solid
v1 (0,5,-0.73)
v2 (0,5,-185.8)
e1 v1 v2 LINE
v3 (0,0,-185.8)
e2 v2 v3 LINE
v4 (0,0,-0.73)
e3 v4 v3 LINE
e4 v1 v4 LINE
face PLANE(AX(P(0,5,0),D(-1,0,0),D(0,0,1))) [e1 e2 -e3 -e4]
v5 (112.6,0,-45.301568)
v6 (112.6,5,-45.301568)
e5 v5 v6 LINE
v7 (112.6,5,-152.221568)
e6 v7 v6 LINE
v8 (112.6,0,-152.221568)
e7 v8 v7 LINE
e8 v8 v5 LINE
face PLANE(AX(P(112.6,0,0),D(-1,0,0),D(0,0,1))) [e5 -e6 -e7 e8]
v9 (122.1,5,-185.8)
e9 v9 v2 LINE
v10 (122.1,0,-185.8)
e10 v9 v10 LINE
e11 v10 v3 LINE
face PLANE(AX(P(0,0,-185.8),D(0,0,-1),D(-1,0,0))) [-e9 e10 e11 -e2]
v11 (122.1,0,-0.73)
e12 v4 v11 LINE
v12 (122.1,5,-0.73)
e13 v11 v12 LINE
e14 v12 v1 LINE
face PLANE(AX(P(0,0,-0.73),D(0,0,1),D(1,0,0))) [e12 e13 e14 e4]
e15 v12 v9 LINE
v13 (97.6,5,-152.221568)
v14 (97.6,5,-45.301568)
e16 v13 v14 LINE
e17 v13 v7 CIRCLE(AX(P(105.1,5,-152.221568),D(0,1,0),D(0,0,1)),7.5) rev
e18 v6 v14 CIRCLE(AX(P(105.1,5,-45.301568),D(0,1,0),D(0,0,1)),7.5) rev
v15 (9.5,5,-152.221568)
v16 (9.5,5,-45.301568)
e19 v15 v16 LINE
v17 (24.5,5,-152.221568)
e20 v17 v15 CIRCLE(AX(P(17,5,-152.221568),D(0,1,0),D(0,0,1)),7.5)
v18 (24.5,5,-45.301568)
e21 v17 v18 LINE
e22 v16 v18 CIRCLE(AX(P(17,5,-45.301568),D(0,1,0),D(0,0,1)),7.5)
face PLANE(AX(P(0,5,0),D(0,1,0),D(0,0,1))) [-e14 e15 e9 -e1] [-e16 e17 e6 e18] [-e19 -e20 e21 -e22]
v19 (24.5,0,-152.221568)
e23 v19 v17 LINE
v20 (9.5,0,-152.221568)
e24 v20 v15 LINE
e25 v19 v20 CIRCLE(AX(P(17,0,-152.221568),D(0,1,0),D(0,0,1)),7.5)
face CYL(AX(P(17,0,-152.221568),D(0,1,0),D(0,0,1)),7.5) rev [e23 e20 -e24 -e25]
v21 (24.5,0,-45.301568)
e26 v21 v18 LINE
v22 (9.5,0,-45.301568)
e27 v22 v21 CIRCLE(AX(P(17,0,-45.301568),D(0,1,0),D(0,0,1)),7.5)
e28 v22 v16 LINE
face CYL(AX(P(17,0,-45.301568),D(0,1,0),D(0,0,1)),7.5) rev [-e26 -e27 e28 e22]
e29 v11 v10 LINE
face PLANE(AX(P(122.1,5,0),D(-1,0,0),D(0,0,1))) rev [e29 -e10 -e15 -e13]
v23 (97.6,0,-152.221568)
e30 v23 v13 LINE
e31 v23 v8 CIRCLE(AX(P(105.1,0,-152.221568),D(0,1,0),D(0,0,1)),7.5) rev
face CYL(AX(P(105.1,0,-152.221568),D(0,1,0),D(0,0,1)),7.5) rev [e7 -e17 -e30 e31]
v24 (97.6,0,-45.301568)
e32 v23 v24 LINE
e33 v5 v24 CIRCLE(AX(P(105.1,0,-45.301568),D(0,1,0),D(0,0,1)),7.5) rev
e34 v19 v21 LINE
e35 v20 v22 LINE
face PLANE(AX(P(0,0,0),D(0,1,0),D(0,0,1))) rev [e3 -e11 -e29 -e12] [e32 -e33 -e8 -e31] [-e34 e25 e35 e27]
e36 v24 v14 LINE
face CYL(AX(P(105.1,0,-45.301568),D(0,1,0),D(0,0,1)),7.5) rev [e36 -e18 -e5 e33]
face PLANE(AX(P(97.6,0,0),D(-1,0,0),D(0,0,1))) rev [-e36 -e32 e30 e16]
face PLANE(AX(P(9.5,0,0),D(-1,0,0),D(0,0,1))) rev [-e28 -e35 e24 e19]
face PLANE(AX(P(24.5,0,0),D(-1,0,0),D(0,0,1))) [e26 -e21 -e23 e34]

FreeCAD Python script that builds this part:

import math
import FreeCAD as App
import Part
import Sketcher

V = App.Vector
Q = App.Units.Quantity


def add_polygon(sketch, points):
    """Adds a closed chain of lines whose ends are joined by coincident constraints."""
    first, n = sketch.GeometryCount, len(points)
    for a, b in zip(points, points[1:] + points[:1]):
        sketch.addGeometry(Part.LineSegment(App.Vector(*a, 0), App.Vector(*b, 0)), False)
    for i in range(n):
        sketch.addConstraint(Sketcher.Constraint("Coincident", first + i, 2, first + (i + 1) % n, 1))

doc = App.newDocument("Part")
params = doc.addObject("Spreadsheet::Sheet", "Params")
for row, (alias, value) in enumerate([
    ("sketch1_width", "122.1 mm"),
    ("sketch1_height", "197.8 mm"),
    ("pad1_length", "5 mm"),
    ("sketch2_radius", "7.5 mm"),
    ("sketch2_height", "106.92 mm"),
    ("pocket1_length", "5 mm"),
    ("pocket2_length", "12 mm"),
    ("pocket3_length", "19 mm"),
    ("sketch5_height", "5 mm"),
    ("sketch5_width", "122.1 mm"),
    ("pad2_length", "18.27 mm"),
], start=1):
    params.set(f"A{row}", alias)
    params.set(f"B{row}", "=" + value)
    params.setAlias(f"B{row}", alias)

body = doc.addObject("PartDesign::Body", "Body")

sketch1 = body.newObject("Sketcher::SketchObject", "Sketch")
sketch1.AttachmentSupport = (doc.getObject("XZ_Plane"), [""])
sketch1.MapMode = "FlatFace"
add_polygon(sketch1, [(0, -198), (0, 0), (122, 0), (122, -198)])
sketch1.addConstraint(Sketcher.Constraint("Vertical", 0))
sketch1.addConstraint(Sketcher.Constraint("Horizontal", 1))
sketch1.addConstraint(Sketcher.Constraint("Vertical", 2))
sketch1.addConstraint(Sketcher.Constraint("Horizontal", 3))
sketch1.addConstraint(Sketcher.Constraint("Coincident", 0, 2, -1, 1))
sketch1.addConstraint(Sketcher.Constraint("DistanceX", 1, 1, 1, 2, Q("122.1 mm")))
sketch1.addConstraint(Sketcher.Constraint("DistanceY", 0, 1, 0, 2, Q("197.8 mm")))
sketch1.setExpression("Constraints[9]", "Params.sketch1_width")
sketch1.setExpression("Constraints[10]", "Params.sketch1_height")
pad1 = body.newObject("PartDesign::Pad", "Pad")
pad1.Profile = sketch1
pad1.setExpression("Length", "Params.pad1_length")
pad1.Reversed = True

sketch2 = body.newObject("Sketcher::SketchObject", "Sketch001")
sketch2.AttachmentSupport = (doc.getObject("XZ_Plane"), [""])
sketch2.MapMode = "FlatFace"
sketch2.AttachmentOffset = App.Placement(V(0, 0, -5), App.Rotation())
sketch2.addGeometry(Part.LineSegment(V(24, -45, 0), V(24, -152, 0)), False)
sketch2.addGeometry(Part.ArcOfCircle(Part.Circle(V(17, -152, 0), V(0, 0, 1), 8), math.radians(180), math.radians(360)), False)
sketch2.addGeometry(Part.LineSegment(V(10, -152, 0), V(10, -45, 0)), False)
sketch2.addGeometry(Part.ArcOfCircle(Part.Circle(V(17, -45, 0), V(0, 0, 1), 8), math.radians(0), math.radians(180)), False)
sketch2.addGeometry(Part.LineSegment(V(98, -152, 0), V(98, -45, 0)), False)
sketch2.addGeometry(Part.ArcOfCircle(Part.Circle(V(105, -45, 0), V(0, 0, 1), 8), math.radians(0), math.radians(180)), False)
sketch2.addGeometry(Part.LineSegment(V(113, -45, 0), V(113, -152, 0)), False)
sketch2.addGeometry(Part.ArcOfCircle(Part.Circle(V(105, -152, 0), V(0, 0, 1), 8), math.radians(180), math.radians(360)), False)
sketch2.addConstraint(Sketcher.Constraint("Tangent", 0, 2, 1, 2))
sketch2.addConstraint(Sketcher.Constraint("Tangent", 1, 1, 2, 1))
sketch2.addConstraint(Sketcher.Constraint("Tangent", 2, 2, 3, 2))
sketch2.addConstraint(Sketcher.Constraint("Tangent", 3, 1, 0, 1))
sketch2.addConstraint(Sketcher.Constraint("Tangent", 4, 2, 5, 2))
sketch2.addConstraint(Sketcher.Constraint("Tangent", 5, 1, 6, 1))
sketch2.addConstraint(Sketcher.Constraint("Tangent", 6, 2, 7, 2))
sketch2.addConstraint(Sketcher.Constraint("Tangent", 7, 1, 4, 1))
sketch2.addConstraint(Sketcher.Constraint("Vertical", 0))
sketch2.addConstraint(Sketcher.Constraint("Vertical", 2))
sketch2.addConstraint(Sketcher.Constraint("Vertical", 4))
sketch2.addConstraint(Sketcher.Constraint("Vertical", 6))
sketch2.addConstraint(Sketcher.Constraint("Equal", 3, 5))
sketch2.addConstraint(Sketcher.Constraint("Horizontal", 3, 3, 5, 3))
sketch2.addConstraint(Sketcher.Constraint("Horizontal", 1, 3, 7, 3))
sketch2.addConstraint(Sketcher.Constraint("Radius", 1, Q("7.5 mm")))
sketch2.addConstraint(Sketcher.Constraint("DistanceX", -1, 1, 1, 3, Q("17 mm")))
sketch2.addConstraint(Sketcher.Constraint("DistanceY", 0, 2, 0, 1, Q("106.92 mm")))
sketch2.addConstraint(Sketcher.Constraint("DistanceX", -1, 1, 5, 3, Q("105.1 mm")))
sketch2.addConstraint(Sketcher.Constraint("DistanceY", 1, 3, -1, 1, Q("152.221568 mm")))
sketch2.setExpression("Constraints[15]", "Params.sketch2_radius")
sketch2.setExpression("Constraints[17]", "Params.sketch2_height")
pocket1 = body.newObject("PartDesign::Pocket", "Pocket")
pocket1.Profile = sketch2
pocket1.setExpression("Length", "Params.pocket1_length")
pocket1.Reversed = True

sketch3 = body.newObject("Sketcher::SketchObject", "Sketch002")
sketch3.AttachmentSupport = (doc.getObject("XY_Plane"), [""])
sketch3.MapMode = "FlatFace"
sketch3.AttachmentOffset = App.Placement(V(0, 0, -197.8), App.Rotation())
add_polygon(sketch3, [(135, 26), (135, -42), (-42, -42), (-42, 26)])
sketch3.addConstraint(Sketcher.Constraint("Vertical", 0))
sketch3.addConstraint(Sketcher.Constraint("Horizontal", 1))
sketch3.addConstraint(Sketcher.Constraint("Vertical", 2))
sketch3.addConstraint(Sketcher.Constraint("Horizontal", 3))
sketch3.addConstraint(Sketcher.Constraint("DistanceX", 1, 2, 1, 1, Q("176.6926 mm")))
sketch3.addConstraint(Sketcher.Constraint("DistanceY", 0, 2, 0, 1, Q("67.834695 mm")))
sketch3.addConstraint(Sketcher.Constraint("DistanceY", -1, 1, 2, 2, Q("26.31456 mm")))
sketch3.addConstraint(Sketcher.Constraint("DistanceX", -1, 1, 0, 2, Q("135.054576 mm")))
pocket2 = body.newObject("PartDesign::Pocket", "Pocket001")
pocket2.Profile = sketch3
pocket2.setExpression("Length", "Params.pocket2_length")
pocket2.Reversed = True

sketch4 = body.newObject("Sketcher::SketchObject", "Sketch003")
sketch4.AttachmentSupport = (doc.getObject("XY_Plane"), [""])
sketch4.MapMode = "FlatFace"
add_polygon(sketch4, [(-6, 33), (-6, -31), (142, -31), (142, 33)])
sketch4.addConstraint(Sketcher.Constraint("Vertical", 0))
sketch4.addConstraint(Sketcher.Constraint("Horizontal", 1))
sketch4.addConstraint(Sketcher.Constraint("Vertical", 2))
sketch4.addConstraint(Sketcher.Constraint("Horizontal", 3))
sketch4.addConstraint(Sketcher.Constraint("DistanceX", 1, 1, 1, 2, Q("148.503355 mm")))
sketch4.addConstraint(Sketcher.Constraint("DistanceY", 0, 2, 0, 1, Q("63.858757 mm")))
sketch4.addConstraint(Sketcher.Constraint("DistanceY", 0, 2, -1, 1, Q("30.99889 mm")))
sketch4.addConstraint(Sketcher.Constraint("DistanceX", -1, 1, 1, 2, Q("142.30823 mm")))
pocket3 = body.newObject("PartDesign::Pocket", "Pocket002")
pocket3.Profile = sketch4
pocket3.setExpression("Length", "Params.pocket3_length")

sketch5 = body.newObject("Sketcher::SketchObject", "Sketch004")
sketch5.AttachmentSupport = (doc.getObject("XY_Plane"), [""])
sketch5.MapMode = "FlatFace"
sketch5.AttachmentOffset = App.Placement(V(0, 0, -19), App.Rotation())
add_polygon(sketch5, [(0, 5), (0, 0), (122, 0), (122, 5)])
sketch5.addConstraint(Sketcher.Constraint("Vertical", 0))
sketch5.addConstraint(Sketcher.Constraint("Horizontal", 1))
sketch5.addConstraint(Sketcher.Constraint("Vertical", 2))
sketch5.addConstraint(Sketcher.Constraint("Horizontal", 3))
sketch5.addConstraint(Sketcher.Constraint("Coincident", 0, 2, -1, 1))
sketch5.addConstraint(Sketcher.Constraint("DistanceY", 0, 2, 0, 1, Q("5 mm")))
sketch5.addConstraint(Sketcher.Constraint("DistanceX", 1, 1, 1, 2, Q("122.1 mm")))
sketch5.setExpression("Constraints[9]", "Params.sketch5_height")
sketch5.setExpression("Constraints[10]", "Params.sketch5_width")
pad2 = body.newObject("PartDesign::Pad", "Pad001")
pad2.Profile = sketch5
pad2.setExpression("Length", "Params.pad2_length")

doc.recompute()
